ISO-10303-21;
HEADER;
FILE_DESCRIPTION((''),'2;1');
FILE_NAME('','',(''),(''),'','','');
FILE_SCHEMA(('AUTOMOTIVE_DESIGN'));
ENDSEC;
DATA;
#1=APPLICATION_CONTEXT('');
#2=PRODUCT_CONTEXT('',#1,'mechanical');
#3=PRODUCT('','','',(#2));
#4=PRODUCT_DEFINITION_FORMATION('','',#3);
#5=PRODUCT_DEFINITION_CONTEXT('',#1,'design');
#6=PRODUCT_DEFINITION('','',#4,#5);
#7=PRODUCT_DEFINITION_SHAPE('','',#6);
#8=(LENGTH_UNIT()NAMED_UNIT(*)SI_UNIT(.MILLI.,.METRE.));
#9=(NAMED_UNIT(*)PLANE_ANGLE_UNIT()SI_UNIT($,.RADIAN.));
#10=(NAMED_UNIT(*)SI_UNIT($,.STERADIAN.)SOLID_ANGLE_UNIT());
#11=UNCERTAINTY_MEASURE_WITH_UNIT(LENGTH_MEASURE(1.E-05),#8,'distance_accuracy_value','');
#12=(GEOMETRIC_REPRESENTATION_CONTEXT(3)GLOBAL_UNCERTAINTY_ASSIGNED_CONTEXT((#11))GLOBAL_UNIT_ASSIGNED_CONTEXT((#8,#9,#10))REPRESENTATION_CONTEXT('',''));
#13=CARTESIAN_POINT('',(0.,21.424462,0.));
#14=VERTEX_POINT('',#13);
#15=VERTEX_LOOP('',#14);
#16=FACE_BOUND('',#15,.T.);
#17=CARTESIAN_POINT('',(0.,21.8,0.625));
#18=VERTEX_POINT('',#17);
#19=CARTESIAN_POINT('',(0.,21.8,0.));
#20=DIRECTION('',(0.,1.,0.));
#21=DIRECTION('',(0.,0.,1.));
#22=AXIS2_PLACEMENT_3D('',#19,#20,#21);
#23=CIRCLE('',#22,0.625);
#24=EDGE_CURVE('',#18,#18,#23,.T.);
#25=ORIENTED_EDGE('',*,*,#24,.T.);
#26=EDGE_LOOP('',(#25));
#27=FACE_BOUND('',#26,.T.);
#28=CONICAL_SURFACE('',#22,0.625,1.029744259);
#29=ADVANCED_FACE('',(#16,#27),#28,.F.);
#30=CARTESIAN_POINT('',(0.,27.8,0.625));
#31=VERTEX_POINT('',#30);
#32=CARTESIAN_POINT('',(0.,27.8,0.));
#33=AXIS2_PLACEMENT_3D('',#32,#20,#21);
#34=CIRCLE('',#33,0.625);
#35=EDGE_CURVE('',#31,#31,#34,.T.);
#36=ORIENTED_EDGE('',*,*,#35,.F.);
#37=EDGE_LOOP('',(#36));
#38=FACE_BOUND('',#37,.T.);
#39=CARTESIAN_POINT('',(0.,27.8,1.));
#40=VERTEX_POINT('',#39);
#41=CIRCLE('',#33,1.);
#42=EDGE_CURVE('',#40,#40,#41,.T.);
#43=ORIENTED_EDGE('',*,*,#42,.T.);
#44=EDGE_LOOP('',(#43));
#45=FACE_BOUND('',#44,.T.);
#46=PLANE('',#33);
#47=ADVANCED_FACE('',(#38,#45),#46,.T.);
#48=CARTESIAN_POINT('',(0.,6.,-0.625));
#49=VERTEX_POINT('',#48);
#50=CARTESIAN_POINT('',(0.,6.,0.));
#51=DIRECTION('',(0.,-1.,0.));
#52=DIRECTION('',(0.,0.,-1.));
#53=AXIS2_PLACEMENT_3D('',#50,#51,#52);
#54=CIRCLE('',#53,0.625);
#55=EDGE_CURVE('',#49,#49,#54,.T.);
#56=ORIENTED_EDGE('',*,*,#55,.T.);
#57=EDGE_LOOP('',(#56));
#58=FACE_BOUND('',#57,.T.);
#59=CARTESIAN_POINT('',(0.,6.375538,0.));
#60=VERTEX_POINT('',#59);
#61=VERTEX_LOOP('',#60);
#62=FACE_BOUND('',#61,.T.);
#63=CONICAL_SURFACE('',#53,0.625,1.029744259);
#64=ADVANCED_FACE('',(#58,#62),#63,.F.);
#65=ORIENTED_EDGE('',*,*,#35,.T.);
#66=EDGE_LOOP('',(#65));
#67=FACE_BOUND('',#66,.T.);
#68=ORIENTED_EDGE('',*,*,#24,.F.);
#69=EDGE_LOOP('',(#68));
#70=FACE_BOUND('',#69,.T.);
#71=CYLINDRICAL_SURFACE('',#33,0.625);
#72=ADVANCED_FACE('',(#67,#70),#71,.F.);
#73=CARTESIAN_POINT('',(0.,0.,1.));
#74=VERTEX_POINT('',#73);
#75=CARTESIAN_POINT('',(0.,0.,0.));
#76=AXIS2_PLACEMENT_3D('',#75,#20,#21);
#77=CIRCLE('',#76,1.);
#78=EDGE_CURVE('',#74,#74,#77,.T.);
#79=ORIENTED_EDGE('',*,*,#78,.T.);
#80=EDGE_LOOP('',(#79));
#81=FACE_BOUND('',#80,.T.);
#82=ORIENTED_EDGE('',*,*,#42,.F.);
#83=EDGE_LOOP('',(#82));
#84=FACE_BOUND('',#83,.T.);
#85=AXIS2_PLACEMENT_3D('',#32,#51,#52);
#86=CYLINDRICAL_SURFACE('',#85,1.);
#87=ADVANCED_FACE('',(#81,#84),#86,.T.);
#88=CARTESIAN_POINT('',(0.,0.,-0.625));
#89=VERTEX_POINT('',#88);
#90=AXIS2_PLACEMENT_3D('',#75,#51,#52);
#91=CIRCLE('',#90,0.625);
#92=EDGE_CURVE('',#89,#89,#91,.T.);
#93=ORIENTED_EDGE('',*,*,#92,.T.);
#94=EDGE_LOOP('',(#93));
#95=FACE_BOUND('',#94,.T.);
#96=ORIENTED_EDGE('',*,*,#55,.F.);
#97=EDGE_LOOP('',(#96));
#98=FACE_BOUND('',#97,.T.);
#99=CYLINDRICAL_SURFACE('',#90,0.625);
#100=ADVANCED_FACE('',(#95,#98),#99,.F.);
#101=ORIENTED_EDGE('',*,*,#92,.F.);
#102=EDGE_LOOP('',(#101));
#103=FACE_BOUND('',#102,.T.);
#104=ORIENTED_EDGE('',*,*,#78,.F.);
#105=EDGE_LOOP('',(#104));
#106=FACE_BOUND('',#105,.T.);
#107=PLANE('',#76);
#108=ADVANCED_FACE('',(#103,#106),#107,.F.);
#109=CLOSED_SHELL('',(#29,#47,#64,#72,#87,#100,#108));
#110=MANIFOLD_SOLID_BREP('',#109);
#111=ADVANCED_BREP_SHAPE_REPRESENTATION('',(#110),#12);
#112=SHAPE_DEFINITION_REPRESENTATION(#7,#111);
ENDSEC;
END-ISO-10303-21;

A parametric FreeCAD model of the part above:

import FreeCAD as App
import Part
import Sketcher
Q = App.Units.Quantity


def add_polygon(sketch, points):
    """Adds a closed chain of lines whose ends are joined by coincident constraints."""
    first, n = sketch.GeometryCount, len(points)
    for a, b in zip(points, points[1:] + points[:1]):
        sketch.addGeometry(Part.LineSegment(App.Vector(*a, 0), App.Vector(*b, 0)), False)
    for i in range(n):
        sketch.addConstraint(Sketcher.Constraint("Coincident", first + i, 2, first + (i + 1) % n, 1))

doc = App.newDocument("Part")
body = doc.addObject("PartDesign::Body", "Body")

sketch1 = body.newObject("Sketcher::SketchObject", "Sketch")
sketch1.AttachmentSupport = (doc.getObject("XZ_Plane"), [""])
sketch1.MapMode = "FlatFace"
sketch1.addGeometry(Part.Circle(App.Vector(0, 0, 0), App.Vector(0, 0, 1), 1), False)
sketch1.addConstraint(Sketcher.Constraint("Coincident", 0, 3, -1, 1))
sketch1.addConstraint(Sketcher.Constraint("Diameter", 0, Q("2 mm")))
pad1 = body.newObject("PartDesign::Pad", "Pad")
pad1.Profile = sketch1
pad1.Length = 27.8
pad1.Reversed = True

sketch2 = body.newObject("Sketcher::SketchObject", "Sketch001")
sketch2.AttachmentSupport = (doc.getObject("YZ_Plane"), [""])
sketch2.MapMode = "FlatFace"
add_polygon(sketch2, [(21.4, 0), (27.8, 0), (27.8, 0.6), (21.8, 0.6)])
sketch2.addConstraint(Sketcher.Constraint("Horizontal", 0))
sketch2.addConstraint(Sketcher.Constraint("Vertical", 1))
sketch2.addConstraint(Sketcher.Constraint("Horizontal", 2))
sketch2.addConstraint(Sketcher.Constraint("PointOnObject", 0, 2, -1))
sketch2.addConstraint(Sketcher.Constraint("DistanceX", 2, 2, 2, 1, Q("6 mm")))
sketch2.addConstraint(Sketcher.Constraint("Angle", 3, Q("-121 deg")))
sketch2.addConstraint(Sketcher.Constraint("DistanceX", -1, 1, 0, 2, Q("27.8 mm")))
sketch2.addConstraint(Sketcher.Constraint("DistanceY", 1, 1, 1, 2, Q("0.625 mm")))
groove = body.newObject("PartDesign::Groove", "Groove")
groove.Profile = sketch2
groove.ReferenceAxis = (sketch2, ["H_Axis"])
groove.Angle = 360
doc.recompute()

datumplane = body.newObject("PartDesign::Plane", "DatumPlane")
datumplane.AttachmentSupport = (doc.getObject("XZ_Plane"), [""])
datumplane.MapMode = "FlatFace"
datumplane.AttachmentOffset = App.Placement(App.Vector(0, 0, -13.9), App.Rotation())
mirrored = body.newObject("PartDesign::Mirrored", "Mirrored")
mirrored.Originals = [groove]
mirrored.MirrorPlane = (datumplane, [""])
body.Tip = mirrored

doc.recompute()
